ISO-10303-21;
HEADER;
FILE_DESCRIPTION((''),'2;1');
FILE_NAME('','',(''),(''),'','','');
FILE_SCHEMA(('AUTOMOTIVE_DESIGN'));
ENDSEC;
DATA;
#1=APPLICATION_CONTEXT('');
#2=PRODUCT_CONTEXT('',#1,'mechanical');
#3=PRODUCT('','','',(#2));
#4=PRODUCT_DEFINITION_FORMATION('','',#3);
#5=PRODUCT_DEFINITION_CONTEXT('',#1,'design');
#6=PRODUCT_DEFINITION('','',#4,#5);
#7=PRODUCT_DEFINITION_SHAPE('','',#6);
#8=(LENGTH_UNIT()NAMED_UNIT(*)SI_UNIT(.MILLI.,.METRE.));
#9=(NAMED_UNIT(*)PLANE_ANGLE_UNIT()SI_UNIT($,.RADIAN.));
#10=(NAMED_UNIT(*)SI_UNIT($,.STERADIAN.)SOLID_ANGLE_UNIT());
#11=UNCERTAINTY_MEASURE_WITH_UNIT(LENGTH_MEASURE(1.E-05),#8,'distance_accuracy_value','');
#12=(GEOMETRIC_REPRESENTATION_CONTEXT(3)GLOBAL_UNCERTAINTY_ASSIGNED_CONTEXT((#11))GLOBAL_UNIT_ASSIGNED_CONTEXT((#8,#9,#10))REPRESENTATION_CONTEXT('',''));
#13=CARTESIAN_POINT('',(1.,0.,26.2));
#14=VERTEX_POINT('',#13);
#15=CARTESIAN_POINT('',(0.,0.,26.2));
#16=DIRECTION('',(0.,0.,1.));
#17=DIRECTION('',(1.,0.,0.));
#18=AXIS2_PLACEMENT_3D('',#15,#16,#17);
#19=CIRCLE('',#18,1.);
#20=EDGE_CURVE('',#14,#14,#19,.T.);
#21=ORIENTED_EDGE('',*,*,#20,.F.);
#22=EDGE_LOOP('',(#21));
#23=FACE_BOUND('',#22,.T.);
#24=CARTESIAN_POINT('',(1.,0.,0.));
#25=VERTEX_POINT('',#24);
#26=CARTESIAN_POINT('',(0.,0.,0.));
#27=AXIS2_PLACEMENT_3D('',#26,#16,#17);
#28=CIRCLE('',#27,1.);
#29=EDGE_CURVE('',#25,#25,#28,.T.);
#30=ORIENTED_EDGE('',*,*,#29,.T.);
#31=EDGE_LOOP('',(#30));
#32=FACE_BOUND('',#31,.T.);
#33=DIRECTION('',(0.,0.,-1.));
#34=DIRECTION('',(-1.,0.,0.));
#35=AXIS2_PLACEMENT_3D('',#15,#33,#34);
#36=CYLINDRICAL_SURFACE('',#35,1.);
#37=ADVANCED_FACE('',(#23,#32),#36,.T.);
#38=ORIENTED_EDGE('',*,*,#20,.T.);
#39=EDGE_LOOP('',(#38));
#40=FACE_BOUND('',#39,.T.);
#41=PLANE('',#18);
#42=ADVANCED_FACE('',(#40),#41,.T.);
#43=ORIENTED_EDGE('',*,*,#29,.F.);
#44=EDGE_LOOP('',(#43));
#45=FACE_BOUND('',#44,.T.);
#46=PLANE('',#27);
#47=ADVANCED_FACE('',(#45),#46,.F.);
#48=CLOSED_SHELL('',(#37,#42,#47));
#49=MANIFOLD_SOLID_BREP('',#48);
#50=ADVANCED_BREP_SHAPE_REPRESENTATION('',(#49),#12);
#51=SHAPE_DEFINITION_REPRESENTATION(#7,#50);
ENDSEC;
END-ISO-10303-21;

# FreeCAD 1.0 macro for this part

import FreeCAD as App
import Part
import Sketcher

V = App.Vector

doc = App.newDocument("Part")
body = doc.addObject("PartDesign::Body", "Body")

# Sketch on XY plane
sketch1 = doc.addObject("Sketcher::SketchObject", "Sketch")
body.addObject(sketch1)
sketch1.AttachmentSupport = (doc.XY_Plane, [""])
sketch1.MapMode = "FlatFace"
sketch1.addGeometry(Part.Circle(V(0, 0, 0), V(0, 0, 1), 1), False)
sketch1.addConstraint(Sketcher.Constraint("Coincident", 0, 3, -1, 1))
sketch1.addConstraint(Sketcher.Constraint("Diameter", 0, 2.0))
pad1 = doc.addObject("PartDesign::Pad", "Pad")
body.addObject(pad1)
pad1.Profile = sketch1
pad1.Length = 26.2

doc.recompute()
